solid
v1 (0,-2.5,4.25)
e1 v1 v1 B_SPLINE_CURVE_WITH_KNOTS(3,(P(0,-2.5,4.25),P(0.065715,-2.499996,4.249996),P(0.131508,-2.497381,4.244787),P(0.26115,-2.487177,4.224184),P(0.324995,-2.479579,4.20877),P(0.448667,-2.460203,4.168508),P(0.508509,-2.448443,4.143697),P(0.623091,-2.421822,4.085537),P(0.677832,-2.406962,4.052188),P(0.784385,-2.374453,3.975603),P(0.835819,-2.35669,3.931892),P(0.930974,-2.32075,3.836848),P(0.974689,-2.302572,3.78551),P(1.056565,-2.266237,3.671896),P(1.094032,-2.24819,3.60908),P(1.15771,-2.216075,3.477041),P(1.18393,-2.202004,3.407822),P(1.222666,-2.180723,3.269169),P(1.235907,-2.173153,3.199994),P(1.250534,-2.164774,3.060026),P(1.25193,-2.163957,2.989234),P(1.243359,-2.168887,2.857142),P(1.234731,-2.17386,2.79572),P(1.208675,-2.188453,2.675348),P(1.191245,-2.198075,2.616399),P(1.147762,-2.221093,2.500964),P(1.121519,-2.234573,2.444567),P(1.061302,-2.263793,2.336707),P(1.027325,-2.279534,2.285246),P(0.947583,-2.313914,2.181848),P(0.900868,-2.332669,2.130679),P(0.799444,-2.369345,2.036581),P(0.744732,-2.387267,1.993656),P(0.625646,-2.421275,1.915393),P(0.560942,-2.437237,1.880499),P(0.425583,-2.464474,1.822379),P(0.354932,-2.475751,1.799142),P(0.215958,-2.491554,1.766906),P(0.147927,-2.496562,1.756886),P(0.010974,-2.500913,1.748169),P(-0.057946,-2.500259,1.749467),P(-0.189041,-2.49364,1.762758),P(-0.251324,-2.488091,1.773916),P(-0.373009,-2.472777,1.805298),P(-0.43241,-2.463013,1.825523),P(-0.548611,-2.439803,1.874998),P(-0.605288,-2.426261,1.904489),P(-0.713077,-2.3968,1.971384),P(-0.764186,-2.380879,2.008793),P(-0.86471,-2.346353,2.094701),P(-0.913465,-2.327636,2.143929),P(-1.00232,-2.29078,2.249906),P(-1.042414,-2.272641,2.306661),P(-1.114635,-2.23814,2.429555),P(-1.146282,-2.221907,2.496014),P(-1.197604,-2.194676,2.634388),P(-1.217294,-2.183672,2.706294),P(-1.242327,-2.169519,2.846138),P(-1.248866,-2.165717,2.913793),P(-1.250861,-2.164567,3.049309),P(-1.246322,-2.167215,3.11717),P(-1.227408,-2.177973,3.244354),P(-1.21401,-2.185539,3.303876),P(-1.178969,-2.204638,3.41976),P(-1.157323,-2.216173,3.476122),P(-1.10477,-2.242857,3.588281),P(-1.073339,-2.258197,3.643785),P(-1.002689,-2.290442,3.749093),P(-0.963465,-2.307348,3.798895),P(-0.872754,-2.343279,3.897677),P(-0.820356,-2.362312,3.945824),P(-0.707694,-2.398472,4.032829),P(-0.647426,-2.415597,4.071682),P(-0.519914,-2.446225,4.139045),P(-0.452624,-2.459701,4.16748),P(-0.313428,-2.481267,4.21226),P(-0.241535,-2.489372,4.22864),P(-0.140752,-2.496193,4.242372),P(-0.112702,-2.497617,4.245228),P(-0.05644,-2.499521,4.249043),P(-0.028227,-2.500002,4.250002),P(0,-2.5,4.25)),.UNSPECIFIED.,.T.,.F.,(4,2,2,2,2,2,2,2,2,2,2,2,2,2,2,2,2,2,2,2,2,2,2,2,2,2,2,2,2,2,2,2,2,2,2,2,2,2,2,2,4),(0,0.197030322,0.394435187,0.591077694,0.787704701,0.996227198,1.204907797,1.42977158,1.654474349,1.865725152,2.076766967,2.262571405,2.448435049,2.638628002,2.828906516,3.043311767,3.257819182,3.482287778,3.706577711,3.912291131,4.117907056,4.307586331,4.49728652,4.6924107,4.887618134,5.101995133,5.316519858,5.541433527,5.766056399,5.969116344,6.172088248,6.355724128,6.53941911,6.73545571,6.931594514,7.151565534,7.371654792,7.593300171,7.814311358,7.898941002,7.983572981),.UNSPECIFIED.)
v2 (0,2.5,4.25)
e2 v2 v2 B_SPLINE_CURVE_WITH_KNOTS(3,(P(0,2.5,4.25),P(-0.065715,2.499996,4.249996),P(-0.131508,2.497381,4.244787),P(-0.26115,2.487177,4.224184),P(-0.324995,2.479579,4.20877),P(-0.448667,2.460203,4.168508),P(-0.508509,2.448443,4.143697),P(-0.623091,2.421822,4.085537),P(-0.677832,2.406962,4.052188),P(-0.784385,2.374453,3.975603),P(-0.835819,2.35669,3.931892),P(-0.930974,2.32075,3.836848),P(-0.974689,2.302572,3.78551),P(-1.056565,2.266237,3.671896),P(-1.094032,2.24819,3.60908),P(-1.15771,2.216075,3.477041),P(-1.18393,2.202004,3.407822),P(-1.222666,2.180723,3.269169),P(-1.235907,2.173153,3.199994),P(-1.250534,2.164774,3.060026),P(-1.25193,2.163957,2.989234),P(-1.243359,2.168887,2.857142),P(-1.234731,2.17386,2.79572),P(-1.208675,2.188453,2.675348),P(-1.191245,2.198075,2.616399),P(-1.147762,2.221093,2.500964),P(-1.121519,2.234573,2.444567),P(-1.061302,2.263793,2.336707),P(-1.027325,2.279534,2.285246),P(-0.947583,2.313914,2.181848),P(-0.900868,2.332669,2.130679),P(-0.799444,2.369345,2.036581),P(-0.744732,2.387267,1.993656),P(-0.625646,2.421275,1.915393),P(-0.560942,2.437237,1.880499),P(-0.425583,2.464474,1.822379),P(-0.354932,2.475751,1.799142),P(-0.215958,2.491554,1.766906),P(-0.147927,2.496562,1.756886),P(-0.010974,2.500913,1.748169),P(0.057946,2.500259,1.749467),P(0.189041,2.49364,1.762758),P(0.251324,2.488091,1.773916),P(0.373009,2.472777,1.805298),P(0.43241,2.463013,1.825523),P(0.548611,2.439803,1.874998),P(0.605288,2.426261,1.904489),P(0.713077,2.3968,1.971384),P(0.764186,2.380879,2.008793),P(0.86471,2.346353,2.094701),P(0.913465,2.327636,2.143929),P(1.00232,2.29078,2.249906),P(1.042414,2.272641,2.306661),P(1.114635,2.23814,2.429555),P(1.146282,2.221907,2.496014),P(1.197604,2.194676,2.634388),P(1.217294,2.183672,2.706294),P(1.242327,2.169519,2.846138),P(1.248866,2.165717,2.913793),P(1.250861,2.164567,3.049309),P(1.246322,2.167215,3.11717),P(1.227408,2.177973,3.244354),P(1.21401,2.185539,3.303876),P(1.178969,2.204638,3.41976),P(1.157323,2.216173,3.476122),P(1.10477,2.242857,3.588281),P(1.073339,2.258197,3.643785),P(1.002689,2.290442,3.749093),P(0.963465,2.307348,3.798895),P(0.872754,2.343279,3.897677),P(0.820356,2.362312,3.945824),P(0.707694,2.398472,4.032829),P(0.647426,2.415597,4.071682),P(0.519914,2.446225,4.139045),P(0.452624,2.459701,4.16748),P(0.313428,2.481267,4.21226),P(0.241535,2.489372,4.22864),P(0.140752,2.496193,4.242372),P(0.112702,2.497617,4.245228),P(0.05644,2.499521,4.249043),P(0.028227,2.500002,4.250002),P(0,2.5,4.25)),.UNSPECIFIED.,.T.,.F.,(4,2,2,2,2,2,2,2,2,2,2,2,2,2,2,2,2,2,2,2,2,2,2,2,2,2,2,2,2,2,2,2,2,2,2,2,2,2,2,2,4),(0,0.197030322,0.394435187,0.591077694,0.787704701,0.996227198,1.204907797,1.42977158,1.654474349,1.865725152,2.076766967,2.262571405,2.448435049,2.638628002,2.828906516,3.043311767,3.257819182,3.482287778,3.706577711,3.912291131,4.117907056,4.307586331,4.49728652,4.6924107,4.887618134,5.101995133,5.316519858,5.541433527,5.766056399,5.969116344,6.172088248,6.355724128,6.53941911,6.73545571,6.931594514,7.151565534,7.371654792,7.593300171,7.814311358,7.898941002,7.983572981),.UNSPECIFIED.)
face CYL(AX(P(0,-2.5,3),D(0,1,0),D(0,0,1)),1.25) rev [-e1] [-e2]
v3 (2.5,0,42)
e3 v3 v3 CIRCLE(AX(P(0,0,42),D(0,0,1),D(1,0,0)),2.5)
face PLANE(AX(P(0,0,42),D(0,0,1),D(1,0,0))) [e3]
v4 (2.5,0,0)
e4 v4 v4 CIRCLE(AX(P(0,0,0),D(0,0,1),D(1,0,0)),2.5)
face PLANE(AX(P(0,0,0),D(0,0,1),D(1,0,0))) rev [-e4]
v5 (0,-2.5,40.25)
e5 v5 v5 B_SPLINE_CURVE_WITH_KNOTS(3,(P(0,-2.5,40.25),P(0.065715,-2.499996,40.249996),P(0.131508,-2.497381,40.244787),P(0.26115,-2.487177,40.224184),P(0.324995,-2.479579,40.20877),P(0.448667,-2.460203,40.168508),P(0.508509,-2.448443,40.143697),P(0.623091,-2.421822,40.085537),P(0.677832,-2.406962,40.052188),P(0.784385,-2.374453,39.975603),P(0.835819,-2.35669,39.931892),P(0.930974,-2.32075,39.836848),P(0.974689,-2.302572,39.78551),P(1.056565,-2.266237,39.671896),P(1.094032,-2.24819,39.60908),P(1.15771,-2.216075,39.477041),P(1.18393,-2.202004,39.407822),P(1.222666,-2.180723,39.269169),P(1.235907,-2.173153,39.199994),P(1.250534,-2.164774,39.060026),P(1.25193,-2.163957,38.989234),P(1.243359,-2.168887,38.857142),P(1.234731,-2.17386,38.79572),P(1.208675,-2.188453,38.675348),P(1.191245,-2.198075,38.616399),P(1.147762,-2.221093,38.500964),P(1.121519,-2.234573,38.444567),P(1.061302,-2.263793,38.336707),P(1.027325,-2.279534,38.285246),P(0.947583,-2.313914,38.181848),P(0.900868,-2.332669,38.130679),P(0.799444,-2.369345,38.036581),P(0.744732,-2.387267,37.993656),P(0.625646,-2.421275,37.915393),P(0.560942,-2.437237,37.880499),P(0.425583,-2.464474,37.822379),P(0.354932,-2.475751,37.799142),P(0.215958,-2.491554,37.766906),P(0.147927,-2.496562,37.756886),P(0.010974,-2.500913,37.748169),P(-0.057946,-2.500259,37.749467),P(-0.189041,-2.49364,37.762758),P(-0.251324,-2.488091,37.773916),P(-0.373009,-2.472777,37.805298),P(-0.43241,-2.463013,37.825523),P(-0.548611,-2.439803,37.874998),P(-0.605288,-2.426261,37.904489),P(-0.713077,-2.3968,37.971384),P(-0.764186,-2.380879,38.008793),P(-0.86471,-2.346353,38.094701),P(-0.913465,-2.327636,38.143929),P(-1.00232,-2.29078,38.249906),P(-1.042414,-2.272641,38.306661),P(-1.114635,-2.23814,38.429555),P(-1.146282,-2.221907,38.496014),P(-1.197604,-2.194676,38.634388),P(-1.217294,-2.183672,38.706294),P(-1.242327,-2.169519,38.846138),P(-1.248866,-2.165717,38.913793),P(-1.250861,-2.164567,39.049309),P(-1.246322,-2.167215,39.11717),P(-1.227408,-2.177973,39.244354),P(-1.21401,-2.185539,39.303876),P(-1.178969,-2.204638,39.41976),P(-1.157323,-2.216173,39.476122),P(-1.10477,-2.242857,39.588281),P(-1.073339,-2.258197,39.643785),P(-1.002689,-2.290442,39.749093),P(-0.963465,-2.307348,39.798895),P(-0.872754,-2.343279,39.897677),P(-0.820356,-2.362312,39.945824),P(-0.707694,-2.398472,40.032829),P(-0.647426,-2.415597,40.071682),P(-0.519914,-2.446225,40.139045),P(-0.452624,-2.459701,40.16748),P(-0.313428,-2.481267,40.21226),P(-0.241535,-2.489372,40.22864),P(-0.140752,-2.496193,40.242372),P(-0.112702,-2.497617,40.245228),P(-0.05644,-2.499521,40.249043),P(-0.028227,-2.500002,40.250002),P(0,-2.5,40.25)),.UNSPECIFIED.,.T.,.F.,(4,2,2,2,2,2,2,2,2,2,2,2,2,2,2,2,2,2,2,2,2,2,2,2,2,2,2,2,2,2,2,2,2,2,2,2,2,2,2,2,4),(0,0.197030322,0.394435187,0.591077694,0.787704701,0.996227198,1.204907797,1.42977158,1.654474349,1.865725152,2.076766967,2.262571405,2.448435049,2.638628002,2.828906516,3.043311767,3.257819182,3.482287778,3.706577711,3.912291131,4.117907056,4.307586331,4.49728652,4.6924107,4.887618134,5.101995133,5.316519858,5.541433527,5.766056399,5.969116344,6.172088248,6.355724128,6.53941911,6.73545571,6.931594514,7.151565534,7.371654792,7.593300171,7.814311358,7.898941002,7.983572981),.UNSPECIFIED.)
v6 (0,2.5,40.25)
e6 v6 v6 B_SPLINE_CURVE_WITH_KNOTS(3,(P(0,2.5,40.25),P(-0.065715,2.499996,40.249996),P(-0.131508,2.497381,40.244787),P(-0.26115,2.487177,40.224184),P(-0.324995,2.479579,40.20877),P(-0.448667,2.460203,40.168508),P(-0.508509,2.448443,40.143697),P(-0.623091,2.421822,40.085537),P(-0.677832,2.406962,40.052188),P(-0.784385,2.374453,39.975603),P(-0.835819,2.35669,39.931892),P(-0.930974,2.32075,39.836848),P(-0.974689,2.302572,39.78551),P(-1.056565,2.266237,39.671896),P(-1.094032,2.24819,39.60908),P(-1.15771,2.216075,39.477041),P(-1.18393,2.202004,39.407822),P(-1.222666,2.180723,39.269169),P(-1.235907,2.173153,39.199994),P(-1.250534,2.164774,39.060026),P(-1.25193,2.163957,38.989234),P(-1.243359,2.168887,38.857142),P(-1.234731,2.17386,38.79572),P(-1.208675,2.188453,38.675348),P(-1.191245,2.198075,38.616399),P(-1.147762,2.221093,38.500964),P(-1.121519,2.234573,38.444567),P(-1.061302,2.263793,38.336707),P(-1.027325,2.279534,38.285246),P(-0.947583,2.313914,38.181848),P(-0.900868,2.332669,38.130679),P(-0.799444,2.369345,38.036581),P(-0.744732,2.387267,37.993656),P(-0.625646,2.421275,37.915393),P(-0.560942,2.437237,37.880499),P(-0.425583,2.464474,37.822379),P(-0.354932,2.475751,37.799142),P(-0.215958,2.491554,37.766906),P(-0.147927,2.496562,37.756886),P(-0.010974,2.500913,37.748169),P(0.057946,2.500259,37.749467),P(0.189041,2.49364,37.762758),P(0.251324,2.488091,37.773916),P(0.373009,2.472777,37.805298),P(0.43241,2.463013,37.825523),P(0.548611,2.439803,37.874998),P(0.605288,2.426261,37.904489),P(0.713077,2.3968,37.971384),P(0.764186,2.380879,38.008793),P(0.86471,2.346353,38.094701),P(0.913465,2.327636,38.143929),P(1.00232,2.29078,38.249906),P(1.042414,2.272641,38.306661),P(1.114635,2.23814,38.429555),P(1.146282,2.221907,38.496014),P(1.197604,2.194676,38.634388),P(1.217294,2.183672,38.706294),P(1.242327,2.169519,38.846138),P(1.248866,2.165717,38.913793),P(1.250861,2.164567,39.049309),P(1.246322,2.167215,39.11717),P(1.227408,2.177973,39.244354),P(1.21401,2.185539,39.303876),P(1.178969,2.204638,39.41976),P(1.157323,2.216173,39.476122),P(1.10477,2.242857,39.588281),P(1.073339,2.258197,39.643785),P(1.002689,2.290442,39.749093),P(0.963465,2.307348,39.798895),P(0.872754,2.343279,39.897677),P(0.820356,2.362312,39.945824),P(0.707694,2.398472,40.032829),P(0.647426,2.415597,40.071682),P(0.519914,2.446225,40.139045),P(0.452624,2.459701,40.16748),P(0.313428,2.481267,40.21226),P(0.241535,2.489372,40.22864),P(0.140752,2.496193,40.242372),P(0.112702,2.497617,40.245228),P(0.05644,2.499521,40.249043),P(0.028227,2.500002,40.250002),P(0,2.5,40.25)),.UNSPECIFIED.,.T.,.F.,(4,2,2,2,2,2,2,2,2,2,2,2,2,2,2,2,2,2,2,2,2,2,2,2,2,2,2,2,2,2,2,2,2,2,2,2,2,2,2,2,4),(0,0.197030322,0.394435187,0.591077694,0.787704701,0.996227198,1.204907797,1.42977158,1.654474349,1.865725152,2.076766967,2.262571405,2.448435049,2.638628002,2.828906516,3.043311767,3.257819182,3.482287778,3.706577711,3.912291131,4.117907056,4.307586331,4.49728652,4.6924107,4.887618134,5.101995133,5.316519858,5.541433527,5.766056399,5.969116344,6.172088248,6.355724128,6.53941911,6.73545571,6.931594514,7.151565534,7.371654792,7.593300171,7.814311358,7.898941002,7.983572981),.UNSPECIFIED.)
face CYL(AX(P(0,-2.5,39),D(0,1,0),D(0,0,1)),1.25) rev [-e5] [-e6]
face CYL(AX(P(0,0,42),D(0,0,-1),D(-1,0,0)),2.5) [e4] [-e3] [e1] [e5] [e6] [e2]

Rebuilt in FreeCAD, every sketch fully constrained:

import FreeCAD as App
import Part
import Sketcher
Q = App.Units.Quantity

doc = App.newDocument("Part")
params = doc.addObject("Spreadsheet::Sheet", "Params")
for row, (alias, value) in enumerate([
    ("sketch1_diameter", "5 mm"),
    ("pad1_length", "42 mm"),
    ("sketch2_diameter", "2.5 mm"),
], start=1):
    params.set(f"A{row}", alias)
    params.set(f"B{row}", "=" + value)
    params.setAlias(f"B{row}", alias)

body = doc.addObject("PartDesign::Body", "Body")

sketch1 = body.newObject("Sketcher::SketchObject", "Sketch")
sketch1.AttachmentSupport = (doc.getObject("XY_Plane"), [""])
sketch1.MapMode = "FlatFace"
sketch1.addGeometry(Part.Circle(App.Vector(0, 0, 0), App.Vector(0, 0, 1), 2.5), False)
sketch1.addConstraint([
    Sketcher.Constraint("Coincident", 0, 3, -1, 1),
    Sketcher.Constraint("Diameter", 0, Q("5 mm")),
])
sketch1.setExpression("Constraints[1]", "Params.sketch1_diameter")
pad1 = body.newObject("PartDesign::Pad", "Pad")
pad1.Profile = sketch1
pad1.setExpression("Length", "Params.pad1_length")

sketch2 = body.newObject("Sketcher::SketchObject", "Sketch001")
sketch2.AttachmentSupport = (doc.getObject("XZ_Plane"), [""])
sketch2.MapMode = "FlatFace"
sketch2.addGeometry([
    Part.Circle(App.Vector(0, 3, 0), App.Vector(0, 0, 1), 1.2),
    Part.Circle(App.Vector(0, 39, 0), App.Vector(0, 0, 1), 1.2),
], False)
sketch2.addConstraint([
    Sketcher.Constraint("Equal", 0, 1),
    Sketcher.Constraint("PointOnObject", 0, 3, -2),
    Sketcher.Constraint("PointOnObject", 1, 3, -2),
    Sketcher.Constraint("Diameter", 0, Q("2.5 mm")),
    Sketcher.Constraint("DistanceY", -1, 1, 0, 3, Q("3 mm")),
    Sketcher.Constraint("DistanceY", -1, 1, 1, 3, Q("39 mm")),
])
sketch2.setExpression("Constraints[3]", "Params.sketch2_diameter")
pocket1 = body.newObject("PartDesign::Pocket", "Pocket")
pocket1.Profile = sketch2
pocket1.Type = "ThroughAll"
pocket1.Midplane = True

doc.recompute()
